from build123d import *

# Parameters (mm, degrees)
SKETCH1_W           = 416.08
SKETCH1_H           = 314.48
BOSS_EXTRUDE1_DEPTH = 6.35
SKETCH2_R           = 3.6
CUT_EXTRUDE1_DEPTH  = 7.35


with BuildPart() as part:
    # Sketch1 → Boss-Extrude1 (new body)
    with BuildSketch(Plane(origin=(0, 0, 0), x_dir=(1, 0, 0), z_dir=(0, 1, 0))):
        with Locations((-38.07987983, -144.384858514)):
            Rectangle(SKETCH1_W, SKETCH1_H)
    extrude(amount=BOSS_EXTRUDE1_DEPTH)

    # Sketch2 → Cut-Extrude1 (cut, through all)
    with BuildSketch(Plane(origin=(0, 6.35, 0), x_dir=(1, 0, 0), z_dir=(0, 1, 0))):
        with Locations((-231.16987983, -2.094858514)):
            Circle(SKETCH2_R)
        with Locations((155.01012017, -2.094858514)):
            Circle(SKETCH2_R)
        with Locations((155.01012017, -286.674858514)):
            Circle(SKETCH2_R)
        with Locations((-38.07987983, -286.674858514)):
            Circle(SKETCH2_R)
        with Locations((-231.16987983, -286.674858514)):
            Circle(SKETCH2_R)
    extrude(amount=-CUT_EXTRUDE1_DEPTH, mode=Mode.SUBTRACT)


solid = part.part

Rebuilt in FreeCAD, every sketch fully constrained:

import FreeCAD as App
import Part
import Sketcher

V = App.Vector
Q = App.Units.Quantity


def add_polygon(sketch, points):
    """Adds a closed chain of lines whose ends are joined by coincident constraints."""
    first, n = sketch.GeometryCount, len(points)
    for a, b in zip(points, points[1:] + points[:1]):
        sketch.addGeometry(Part.LineSegment(App.Vector(*a, 0), App.Vector(*b, 0)), False)
    for i in range(n):
        sketch.addConstraint(Sketcher.Constraint("Coincident", first + i, 2, first + (i + 1) % n, 1))

doc = App.newDocument("Part")
params = doc.addObject("Spreadsheet::Sheet", "Params")
for row, (alias, value) in enumerate([
    ("sketch1_width", "416.08 mm"),
    ("sketch1_height", "314.48 mm"),
    ("pad1_length", "6.35 mm"),
    ("sketch2_diameter", "7.2 mm"),
], start=1):
    params.set(f"A{row}", alias)
    params.set(f"B{row}", "=" + value)
    params.setAlias(f"B{row}", alias)

body = doc.addObject("PartDesign::Body", "Body")

# Sketch on XZ plane
sketch1 = doc.addObject("Sketcher::SketchObject", "Sketch")
body.addObject(sketch1)
sketch1.AttachmentSupport = (doc.XZ_Plane, [""])
sketch1.MapMode = "FlatFace"
add_polygon(sketch1, [(-246.11988, -12.855141), (-246.11988, 301.624859), (169.96012, 301.624859), (169.96012, -12.855141)])  # lines 0-3
sketch1.addConstraint([
    Sketcher.Constraint("Vertical", 0),
    Sketcher.Constraint("Horizontal", 1),
    Sketcher.Constraint("Vertical", 2),
    Sketcher.Constraint("Horizontal", 3),
    Sketcher.Constraint("DistanceX", 1, 1, 1, 2, Q("416.08 mm")),
    Sketcher.Constraint("DistanceY", 0, 1, 0, 2, Q("314.48 mm")),
    Sketcher.Constraint("DistanceX", 0, 2, -1, 1, Q("246.11988 mm")),
    Sketcher.Constraint("DistanceY", -1, 1, 0, 2, Q("301.624859 mm")),
])
sketch1.setExpression("Constraints[8]", "Params.sketch1_width")
sketch1.setExpression("Constraints[9]", "Params.sketch1_height")
pad1 = doc.addObject("PartDesign::Pad", "Pad")
body.addObject(pad1)
pad1.Profile = sketch1
pad1.setExpression("Length", "Params.pad1_length")
pad1.Reversed = True

# Sketch on XZ plane
sketch2 = doc.addObject("Sketcher::SketchObject", "Sketch001")
body.addObject(sketch2)
sketch2.AttachmentSupport = (doc.XZ_Plane, [""])
sketch2.MapMode = "FlatFace"
sketch2.AttachmentOffset = App.Placement(V(0, 0, -6.35), App.Rotation())
sketch2.addGeometry([
    Part.Circle(V(-231.16988, 2.094859, 0), V(0, 0, 1), 3.6),  # 0
    Part.Circle(V(155.01012, 2.094859, 0), V(0, 0, 1), 3.6),  # 1
    Part.Circle(V(155.01012, 286.674859, 0), V(0, 0, 1), 3.6),  # 2
    Part.Circle(V(-38.07988, 286.674859, 0), V(0, 0, 1), 3.6),  # 3
    Part.Circle(V(-231.16988, 286.674859, 0), V(0, 0, 1), 3.6),  # 4
], False)
sketch2.addConstraint([
    Sketcher.Constraint("Equal", 0, 1),
    Sketcher.Constraint("Equal", 1, 2),
    Sketcher.Constraint("Equal", 2, 3),
    Sketcher.Constraint("Equal", 3, 4),
    Sketcher.Constraint("Horizontal", 0, 3, 1, 3),
    Sketcher.Constraint("Horizontal", 2, 3, 3, 3),
    Sketcher.Constraint("Horizontal", 3, 3, 4, 3),
    Sketcher.Constraint("Vertical", 1, 3, 2, 3),
    Sketcher.Constraint("Vertical", 0, 3, 4, 3),
    Sketcher.Constraint("Diameter", 0, Q("7.2 mm")),
    Sketcher.Constraint("DistanceX", 0, 3, 1, 3, Q("386.18 mm")),
    Sketcher.Constraint("DistanceY", 1, 3, 2, 3, Q("284.58 mm")),
    Sketcher.Constraint("DistanceX", 3, 3, 2, 3, Q("193.09 mm")),
    Sketcher.Constraint("DistanceX", 0, 3, -1, 1, Q("231.16988 mm")),
    Sketcher.Constraint("DistanceY", -1, 1, 0, 3, Q("2.094859 mm")),
])
sketch2.setExpression("Constraints[9]", "Params.sketch2_diameter")
pocket1 = doc.addObject("PartDesign::Pocket", "Pocket")
body.addObject(pocket1)
pocket1.Profile = sketch2
pocket1.Type = "ThroughAll"
pocket1.Reversed = True

doc.recompute()
